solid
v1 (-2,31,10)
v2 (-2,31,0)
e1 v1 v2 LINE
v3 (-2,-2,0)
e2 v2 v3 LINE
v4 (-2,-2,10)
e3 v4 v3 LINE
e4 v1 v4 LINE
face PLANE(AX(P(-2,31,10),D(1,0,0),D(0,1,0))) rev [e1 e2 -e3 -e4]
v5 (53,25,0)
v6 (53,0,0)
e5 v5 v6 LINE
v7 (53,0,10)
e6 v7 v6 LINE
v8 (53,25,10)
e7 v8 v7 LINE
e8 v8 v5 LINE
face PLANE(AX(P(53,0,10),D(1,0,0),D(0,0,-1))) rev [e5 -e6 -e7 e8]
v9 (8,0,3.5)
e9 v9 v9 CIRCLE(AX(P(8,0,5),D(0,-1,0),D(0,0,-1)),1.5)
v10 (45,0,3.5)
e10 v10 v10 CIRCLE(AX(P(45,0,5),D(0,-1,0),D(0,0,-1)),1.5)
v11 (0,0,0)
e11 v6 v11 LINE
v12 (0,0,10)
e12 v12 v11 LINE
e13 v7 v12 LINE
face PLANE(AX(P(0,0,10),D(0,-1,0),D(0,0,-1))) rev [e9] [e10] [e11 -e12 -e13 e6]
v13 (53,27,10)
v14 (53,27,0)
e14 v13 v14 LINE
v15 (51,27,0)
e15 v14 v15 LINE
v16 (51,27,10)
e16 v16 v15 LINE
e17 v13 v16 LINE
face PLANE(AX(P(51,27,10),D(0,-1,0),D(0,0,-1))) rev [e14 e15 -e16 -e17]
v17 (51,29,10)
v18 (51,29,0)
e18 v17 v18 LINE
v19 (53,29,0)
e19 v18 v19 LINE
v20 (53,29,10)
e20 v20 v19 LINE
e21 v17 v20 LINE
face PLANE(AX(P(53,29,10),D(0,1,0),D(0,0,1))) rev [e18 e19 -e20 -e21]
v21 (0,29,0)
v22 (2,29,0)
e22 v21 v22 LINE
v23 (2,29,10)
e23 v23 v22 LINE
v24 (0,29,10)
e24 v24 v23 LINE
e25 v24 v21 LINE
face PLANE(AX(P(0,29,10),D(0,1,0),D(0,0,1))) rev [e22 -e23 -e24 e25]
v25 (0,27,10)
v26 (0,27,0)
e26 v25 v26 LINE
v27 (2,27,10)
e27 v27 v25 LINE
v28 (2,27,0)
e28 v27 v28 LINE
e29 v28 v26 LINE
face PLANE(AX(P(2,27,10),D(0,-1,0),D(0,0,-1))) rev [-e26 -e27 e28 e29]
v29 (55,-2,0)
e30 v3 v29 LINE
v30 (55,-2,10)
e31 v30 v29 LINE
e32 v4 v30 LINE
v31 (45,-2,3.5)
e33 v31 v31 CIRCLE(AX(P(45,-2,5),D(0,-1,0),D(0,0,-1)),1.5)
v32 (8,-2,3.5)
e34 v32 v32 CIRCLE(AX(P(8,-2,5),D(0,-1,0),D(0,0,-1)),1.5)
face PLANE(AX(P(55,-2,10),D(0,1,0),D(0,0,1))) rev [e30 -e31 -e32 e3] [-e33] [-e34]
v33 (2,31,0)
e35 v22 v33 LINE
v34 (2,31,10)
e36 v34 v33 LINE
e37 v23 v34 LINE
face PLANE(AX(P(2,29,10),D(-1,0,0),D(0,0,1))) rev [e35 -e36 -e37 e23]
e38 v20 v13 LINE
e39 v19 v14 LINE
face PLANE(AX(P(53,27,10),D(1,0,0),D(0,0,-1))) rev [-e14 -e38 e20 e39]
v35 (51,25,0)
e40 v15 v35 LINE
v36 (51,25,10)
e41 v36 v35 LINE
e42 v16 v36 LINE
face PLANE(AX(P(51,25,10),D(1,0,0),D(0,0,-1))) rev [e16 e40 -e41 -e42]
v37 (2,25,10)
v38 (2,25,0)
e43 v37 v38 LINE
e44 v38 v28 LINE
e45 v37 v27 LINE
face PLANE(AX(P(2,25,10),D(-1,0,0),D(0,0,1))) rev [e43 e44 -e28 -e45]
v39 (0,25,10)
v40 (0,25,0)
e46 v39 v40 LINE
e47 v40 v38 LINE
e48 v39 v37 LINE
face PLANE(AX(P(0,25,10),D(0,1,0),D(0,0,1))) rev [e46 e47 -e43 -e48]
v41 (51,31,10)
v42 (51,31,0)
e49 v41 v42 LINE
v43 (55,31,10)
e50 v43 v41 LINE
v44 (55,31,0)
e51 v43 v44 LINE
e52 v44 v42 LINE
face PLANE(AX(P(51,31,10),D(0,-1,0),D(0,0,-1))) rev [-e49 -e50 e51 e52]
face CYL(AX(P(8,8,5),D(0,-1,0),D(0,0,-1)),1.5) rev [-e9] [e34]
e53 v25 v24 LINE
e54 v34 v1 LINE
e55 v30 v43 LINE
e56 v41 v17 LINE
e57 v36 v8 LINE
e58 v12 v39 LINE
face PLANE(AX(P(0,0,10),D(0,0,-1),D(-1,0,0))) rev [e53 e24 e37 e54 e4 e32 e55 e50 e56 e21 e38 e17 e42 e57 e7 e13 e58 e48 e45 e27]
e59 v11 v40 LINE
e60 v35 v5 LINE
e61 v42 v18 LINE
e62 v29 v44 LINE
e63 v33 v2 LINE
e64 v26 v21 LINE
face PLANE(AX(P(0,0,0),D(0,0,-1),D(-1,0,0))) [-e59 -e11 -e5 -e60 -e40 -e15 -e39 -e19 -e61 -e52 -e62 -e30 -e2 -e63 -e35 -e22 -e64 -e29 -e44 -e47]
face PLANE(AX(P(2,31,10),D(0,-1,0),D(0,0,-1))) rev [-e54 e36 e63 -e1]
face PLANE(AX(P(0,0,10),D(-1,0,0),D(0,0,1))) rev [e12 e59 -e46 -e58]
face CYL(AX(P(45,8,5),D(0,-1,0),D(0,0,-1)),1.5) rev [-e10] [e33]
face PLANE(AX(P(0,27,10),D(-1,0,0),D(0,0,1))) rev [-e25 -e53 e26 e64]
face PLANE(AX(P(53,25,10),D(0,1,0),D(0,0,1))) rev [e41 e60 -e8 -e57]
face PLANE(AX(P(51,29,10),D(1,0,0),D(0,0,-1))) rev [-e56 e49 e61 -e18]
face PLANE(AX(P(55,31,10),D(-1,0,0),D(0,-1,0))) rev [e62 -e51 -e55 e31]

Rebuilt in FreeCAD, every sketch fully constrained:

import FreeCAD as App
import Part
import Sketcher

V = App.Vector


def add_polygon(sketch, points):
    """Adds a closed chain of lines whose ends are joined by coincident constraints."""
    first, n = sketch.GeometryCount, len(points)
    for a, b in zip(points, points[1:] + points[:1]):
        sketch.addGeometry(Part.LineSegment(App.Vector(*a, 0), App.Vector(*b, 0)), False)
    for i in range(n):
        sketch.addConstraint(Sketcher.Constraint("Coincident", first + i, 2, first + (i + 1) % n, 1))

doc = App.newDocument("Part")
body = doc.addObject("PartDesign::Body", "Body")

# Sketch on XY plane
sketch1 = body.newObject("Sketcher::SketchObject", "Sketch")
sketch1.AttachmentSupport = (doc.getObject("XY_Plane"), [""])
sketch1.MapMode = "FlatFace"
add_polygon(sketch1, [(53, 0), (0, 0), (0, 25), (2, 25), (2, 27), (0, 27), (0, 29), (2, 29), (2, 31), (-2, 31), (-2, -2), (55, -2), (55, 31), (51, 31), (51, 29), (53, 29), (53, 27), (51, 27), (51, 25), (53, 25)])  # lines 0-19
sketch1.addConstraint(Sketcher.Constraint("Horizontal", 0))
sketch1.addConstraint(Sketcher.Constraint("Vertical", 1))
sketch1.addConstraint(Sketcher.Constraint("Horizontal", 2))
sketch1.addConstraint(Sketcher.Constraint("Vertical", 3))
sketch1.addConstraint(Sketcher.Constraint("Horizontal", 4))
sketch1.addConstraint(Sketcher.Constraint("Vertical", 5))
sketch1.addConstraint(Sketcher.Constraint("Horizontal", 6))
sketch1.addConstraint(Sketcher.Constraint("Vertical", 7))
sketch1.addConstraint(Sketcher.Constraint("Horizontal", 8))
sketch1.addConstraint(Sketcher.Constraint("Vertical", 9))
sketch1.addConstraint(Sketcher.Constraint("Horizontal", 10))
sketch1.addConstraint(Sketcher.Constraint("Vertical", 11))
sketch1.addConstraint(Sketcher.Constraint("Horizontal", 12))
sketch1.addConstraint(Sketcher.Constraint("Vertical", 13))
sketch1.addConstraint(Sketcher.Constraint("Horizontal", 14))
sketch1.addConstraint(Sketcher.Constraint("Vertical", 15))
sketch1.addConstraint(Sketcher.Constraint("Horizontal", 16))
sketch1.addConstraint(Sketcher.Constraint("Vertical", 17))
sketch1.addConstraint(Sketcher.Constraint("Horizontal", 18))
sketch1.addConstraint(Sketcher.Constraint("Vertical", 19))
sketch1.addConstraint(Sketcher.Constraint("Coincident", 0, 2, -1, 1))
sketch1.addConstraint(Sketcher.Constraint("PointOnObject", 4, 2, -2))
sketch1.addConstraint(Sketcher.Constraint("Horizontal", 8, 2, 11, 2))
sketch1.addConstraint(Sketcher.Constraint("Horizontal", 6, 2, 13, 2))
sketch1.addConstraint(Sketcher.Constraint("Horizontal", 4, 2, 15, 2))
sketch1.addConstraint(Sketcher.Constraint("Horizontal", 2, 2, 17, 2))
sketch1.addConstraint(Sketcher.Constraint("Vertical", 3, 2, 6, 2))
sketch1.addConstraint(Sketcher.Constraint("Vertical", 13, 2, 16, 2))
sketch1.addConstraint(Sketcher.Constraint("Vertical", 15, 2, 18, 2))
sketch1.addConstraint(Sketcher.Constraint("Equal", 8, 12))
sketch1.addConstraint(Sketcher.Constraint("Equal", 6, 14))
sketch1.addConstraint(Sketcher.Constraint("Equal", 18, 3))
sketch1.addConstraint(Sketcher.Constraint("Equal", 3, 5))
sketch1.addConstraint(Sketcher.Constraint("Equal", 5, 7))
sketch1.addConstraint(Sketcher.Constraint("DistanceX", 0, 2, 0, 1, 53.0))
sketch1.addConstraint(Sketcher.Constraint("DistanceX", 2, 1, 2, 2, 2.0))
sketch1.addConstraint(Sketcher.Constraint("DistanceX", 8, 2, 8, 1, 4.0))
sketch1.addConstraint(Sketcher.Constraint("DistanceY", 1, 1, 1, 2, 25.0))
sketch1.addConstraint(Sketcher.Constraint("DistanceY", 9, 2, 9, 1, 33.0))
pad1 = body.newObject("PartDesign::Pad", "Pad")
pad1.Profile = sketch1
pad1.Length = 10

# Sketch on XZ plane
sketch2 = body.newObject("Sketcher::SketchObject", "Sketch001")
sketch2.AttachmentSupport = (doc.getObject("XZ_Plane"), [""])
sketch2.MapMode = "FlatFace"
sketch2.AttachmentOffset = App.Placement(V(0, 0, 2), App.Rotation())
sketch2.addGeometry(Part.Circle(V(45, 5, 0), V(0, 0, 1), 1.5), False)
sketch2.addGeometry(Part.Circle(V(8, 5, 0), V(0, 0, 1), 1.5), False)
sketch2.addConstraint(Sketcher.Constraint("Equal", 0, 1))
sketch2.addConstraint(Sketcher.Constraint("Horizontal", 0, 3, 1, 3))
sketch2.addConstraint(Sketcher.Constraint("Diameter", 0, 3.0))
sketch2.addConstraint(Sketcher.Constraint("DistanceX", -1, 1, 0, 3, 45.0))
sketch2.addConstraint(Sketcher.Constraint("DistanceY", -1, 1, 0, 3, 5.0))
sketch2.addConstraint(Sketcher.Constraint("DistanceX", -1, 1, 1, 3, 8.0))
pocket1 = body.newObject("PartDesign::Pocket", "Pocket")
pocket1.Profile = sketch2
pocket1.Length = 10

doc.recompute()
